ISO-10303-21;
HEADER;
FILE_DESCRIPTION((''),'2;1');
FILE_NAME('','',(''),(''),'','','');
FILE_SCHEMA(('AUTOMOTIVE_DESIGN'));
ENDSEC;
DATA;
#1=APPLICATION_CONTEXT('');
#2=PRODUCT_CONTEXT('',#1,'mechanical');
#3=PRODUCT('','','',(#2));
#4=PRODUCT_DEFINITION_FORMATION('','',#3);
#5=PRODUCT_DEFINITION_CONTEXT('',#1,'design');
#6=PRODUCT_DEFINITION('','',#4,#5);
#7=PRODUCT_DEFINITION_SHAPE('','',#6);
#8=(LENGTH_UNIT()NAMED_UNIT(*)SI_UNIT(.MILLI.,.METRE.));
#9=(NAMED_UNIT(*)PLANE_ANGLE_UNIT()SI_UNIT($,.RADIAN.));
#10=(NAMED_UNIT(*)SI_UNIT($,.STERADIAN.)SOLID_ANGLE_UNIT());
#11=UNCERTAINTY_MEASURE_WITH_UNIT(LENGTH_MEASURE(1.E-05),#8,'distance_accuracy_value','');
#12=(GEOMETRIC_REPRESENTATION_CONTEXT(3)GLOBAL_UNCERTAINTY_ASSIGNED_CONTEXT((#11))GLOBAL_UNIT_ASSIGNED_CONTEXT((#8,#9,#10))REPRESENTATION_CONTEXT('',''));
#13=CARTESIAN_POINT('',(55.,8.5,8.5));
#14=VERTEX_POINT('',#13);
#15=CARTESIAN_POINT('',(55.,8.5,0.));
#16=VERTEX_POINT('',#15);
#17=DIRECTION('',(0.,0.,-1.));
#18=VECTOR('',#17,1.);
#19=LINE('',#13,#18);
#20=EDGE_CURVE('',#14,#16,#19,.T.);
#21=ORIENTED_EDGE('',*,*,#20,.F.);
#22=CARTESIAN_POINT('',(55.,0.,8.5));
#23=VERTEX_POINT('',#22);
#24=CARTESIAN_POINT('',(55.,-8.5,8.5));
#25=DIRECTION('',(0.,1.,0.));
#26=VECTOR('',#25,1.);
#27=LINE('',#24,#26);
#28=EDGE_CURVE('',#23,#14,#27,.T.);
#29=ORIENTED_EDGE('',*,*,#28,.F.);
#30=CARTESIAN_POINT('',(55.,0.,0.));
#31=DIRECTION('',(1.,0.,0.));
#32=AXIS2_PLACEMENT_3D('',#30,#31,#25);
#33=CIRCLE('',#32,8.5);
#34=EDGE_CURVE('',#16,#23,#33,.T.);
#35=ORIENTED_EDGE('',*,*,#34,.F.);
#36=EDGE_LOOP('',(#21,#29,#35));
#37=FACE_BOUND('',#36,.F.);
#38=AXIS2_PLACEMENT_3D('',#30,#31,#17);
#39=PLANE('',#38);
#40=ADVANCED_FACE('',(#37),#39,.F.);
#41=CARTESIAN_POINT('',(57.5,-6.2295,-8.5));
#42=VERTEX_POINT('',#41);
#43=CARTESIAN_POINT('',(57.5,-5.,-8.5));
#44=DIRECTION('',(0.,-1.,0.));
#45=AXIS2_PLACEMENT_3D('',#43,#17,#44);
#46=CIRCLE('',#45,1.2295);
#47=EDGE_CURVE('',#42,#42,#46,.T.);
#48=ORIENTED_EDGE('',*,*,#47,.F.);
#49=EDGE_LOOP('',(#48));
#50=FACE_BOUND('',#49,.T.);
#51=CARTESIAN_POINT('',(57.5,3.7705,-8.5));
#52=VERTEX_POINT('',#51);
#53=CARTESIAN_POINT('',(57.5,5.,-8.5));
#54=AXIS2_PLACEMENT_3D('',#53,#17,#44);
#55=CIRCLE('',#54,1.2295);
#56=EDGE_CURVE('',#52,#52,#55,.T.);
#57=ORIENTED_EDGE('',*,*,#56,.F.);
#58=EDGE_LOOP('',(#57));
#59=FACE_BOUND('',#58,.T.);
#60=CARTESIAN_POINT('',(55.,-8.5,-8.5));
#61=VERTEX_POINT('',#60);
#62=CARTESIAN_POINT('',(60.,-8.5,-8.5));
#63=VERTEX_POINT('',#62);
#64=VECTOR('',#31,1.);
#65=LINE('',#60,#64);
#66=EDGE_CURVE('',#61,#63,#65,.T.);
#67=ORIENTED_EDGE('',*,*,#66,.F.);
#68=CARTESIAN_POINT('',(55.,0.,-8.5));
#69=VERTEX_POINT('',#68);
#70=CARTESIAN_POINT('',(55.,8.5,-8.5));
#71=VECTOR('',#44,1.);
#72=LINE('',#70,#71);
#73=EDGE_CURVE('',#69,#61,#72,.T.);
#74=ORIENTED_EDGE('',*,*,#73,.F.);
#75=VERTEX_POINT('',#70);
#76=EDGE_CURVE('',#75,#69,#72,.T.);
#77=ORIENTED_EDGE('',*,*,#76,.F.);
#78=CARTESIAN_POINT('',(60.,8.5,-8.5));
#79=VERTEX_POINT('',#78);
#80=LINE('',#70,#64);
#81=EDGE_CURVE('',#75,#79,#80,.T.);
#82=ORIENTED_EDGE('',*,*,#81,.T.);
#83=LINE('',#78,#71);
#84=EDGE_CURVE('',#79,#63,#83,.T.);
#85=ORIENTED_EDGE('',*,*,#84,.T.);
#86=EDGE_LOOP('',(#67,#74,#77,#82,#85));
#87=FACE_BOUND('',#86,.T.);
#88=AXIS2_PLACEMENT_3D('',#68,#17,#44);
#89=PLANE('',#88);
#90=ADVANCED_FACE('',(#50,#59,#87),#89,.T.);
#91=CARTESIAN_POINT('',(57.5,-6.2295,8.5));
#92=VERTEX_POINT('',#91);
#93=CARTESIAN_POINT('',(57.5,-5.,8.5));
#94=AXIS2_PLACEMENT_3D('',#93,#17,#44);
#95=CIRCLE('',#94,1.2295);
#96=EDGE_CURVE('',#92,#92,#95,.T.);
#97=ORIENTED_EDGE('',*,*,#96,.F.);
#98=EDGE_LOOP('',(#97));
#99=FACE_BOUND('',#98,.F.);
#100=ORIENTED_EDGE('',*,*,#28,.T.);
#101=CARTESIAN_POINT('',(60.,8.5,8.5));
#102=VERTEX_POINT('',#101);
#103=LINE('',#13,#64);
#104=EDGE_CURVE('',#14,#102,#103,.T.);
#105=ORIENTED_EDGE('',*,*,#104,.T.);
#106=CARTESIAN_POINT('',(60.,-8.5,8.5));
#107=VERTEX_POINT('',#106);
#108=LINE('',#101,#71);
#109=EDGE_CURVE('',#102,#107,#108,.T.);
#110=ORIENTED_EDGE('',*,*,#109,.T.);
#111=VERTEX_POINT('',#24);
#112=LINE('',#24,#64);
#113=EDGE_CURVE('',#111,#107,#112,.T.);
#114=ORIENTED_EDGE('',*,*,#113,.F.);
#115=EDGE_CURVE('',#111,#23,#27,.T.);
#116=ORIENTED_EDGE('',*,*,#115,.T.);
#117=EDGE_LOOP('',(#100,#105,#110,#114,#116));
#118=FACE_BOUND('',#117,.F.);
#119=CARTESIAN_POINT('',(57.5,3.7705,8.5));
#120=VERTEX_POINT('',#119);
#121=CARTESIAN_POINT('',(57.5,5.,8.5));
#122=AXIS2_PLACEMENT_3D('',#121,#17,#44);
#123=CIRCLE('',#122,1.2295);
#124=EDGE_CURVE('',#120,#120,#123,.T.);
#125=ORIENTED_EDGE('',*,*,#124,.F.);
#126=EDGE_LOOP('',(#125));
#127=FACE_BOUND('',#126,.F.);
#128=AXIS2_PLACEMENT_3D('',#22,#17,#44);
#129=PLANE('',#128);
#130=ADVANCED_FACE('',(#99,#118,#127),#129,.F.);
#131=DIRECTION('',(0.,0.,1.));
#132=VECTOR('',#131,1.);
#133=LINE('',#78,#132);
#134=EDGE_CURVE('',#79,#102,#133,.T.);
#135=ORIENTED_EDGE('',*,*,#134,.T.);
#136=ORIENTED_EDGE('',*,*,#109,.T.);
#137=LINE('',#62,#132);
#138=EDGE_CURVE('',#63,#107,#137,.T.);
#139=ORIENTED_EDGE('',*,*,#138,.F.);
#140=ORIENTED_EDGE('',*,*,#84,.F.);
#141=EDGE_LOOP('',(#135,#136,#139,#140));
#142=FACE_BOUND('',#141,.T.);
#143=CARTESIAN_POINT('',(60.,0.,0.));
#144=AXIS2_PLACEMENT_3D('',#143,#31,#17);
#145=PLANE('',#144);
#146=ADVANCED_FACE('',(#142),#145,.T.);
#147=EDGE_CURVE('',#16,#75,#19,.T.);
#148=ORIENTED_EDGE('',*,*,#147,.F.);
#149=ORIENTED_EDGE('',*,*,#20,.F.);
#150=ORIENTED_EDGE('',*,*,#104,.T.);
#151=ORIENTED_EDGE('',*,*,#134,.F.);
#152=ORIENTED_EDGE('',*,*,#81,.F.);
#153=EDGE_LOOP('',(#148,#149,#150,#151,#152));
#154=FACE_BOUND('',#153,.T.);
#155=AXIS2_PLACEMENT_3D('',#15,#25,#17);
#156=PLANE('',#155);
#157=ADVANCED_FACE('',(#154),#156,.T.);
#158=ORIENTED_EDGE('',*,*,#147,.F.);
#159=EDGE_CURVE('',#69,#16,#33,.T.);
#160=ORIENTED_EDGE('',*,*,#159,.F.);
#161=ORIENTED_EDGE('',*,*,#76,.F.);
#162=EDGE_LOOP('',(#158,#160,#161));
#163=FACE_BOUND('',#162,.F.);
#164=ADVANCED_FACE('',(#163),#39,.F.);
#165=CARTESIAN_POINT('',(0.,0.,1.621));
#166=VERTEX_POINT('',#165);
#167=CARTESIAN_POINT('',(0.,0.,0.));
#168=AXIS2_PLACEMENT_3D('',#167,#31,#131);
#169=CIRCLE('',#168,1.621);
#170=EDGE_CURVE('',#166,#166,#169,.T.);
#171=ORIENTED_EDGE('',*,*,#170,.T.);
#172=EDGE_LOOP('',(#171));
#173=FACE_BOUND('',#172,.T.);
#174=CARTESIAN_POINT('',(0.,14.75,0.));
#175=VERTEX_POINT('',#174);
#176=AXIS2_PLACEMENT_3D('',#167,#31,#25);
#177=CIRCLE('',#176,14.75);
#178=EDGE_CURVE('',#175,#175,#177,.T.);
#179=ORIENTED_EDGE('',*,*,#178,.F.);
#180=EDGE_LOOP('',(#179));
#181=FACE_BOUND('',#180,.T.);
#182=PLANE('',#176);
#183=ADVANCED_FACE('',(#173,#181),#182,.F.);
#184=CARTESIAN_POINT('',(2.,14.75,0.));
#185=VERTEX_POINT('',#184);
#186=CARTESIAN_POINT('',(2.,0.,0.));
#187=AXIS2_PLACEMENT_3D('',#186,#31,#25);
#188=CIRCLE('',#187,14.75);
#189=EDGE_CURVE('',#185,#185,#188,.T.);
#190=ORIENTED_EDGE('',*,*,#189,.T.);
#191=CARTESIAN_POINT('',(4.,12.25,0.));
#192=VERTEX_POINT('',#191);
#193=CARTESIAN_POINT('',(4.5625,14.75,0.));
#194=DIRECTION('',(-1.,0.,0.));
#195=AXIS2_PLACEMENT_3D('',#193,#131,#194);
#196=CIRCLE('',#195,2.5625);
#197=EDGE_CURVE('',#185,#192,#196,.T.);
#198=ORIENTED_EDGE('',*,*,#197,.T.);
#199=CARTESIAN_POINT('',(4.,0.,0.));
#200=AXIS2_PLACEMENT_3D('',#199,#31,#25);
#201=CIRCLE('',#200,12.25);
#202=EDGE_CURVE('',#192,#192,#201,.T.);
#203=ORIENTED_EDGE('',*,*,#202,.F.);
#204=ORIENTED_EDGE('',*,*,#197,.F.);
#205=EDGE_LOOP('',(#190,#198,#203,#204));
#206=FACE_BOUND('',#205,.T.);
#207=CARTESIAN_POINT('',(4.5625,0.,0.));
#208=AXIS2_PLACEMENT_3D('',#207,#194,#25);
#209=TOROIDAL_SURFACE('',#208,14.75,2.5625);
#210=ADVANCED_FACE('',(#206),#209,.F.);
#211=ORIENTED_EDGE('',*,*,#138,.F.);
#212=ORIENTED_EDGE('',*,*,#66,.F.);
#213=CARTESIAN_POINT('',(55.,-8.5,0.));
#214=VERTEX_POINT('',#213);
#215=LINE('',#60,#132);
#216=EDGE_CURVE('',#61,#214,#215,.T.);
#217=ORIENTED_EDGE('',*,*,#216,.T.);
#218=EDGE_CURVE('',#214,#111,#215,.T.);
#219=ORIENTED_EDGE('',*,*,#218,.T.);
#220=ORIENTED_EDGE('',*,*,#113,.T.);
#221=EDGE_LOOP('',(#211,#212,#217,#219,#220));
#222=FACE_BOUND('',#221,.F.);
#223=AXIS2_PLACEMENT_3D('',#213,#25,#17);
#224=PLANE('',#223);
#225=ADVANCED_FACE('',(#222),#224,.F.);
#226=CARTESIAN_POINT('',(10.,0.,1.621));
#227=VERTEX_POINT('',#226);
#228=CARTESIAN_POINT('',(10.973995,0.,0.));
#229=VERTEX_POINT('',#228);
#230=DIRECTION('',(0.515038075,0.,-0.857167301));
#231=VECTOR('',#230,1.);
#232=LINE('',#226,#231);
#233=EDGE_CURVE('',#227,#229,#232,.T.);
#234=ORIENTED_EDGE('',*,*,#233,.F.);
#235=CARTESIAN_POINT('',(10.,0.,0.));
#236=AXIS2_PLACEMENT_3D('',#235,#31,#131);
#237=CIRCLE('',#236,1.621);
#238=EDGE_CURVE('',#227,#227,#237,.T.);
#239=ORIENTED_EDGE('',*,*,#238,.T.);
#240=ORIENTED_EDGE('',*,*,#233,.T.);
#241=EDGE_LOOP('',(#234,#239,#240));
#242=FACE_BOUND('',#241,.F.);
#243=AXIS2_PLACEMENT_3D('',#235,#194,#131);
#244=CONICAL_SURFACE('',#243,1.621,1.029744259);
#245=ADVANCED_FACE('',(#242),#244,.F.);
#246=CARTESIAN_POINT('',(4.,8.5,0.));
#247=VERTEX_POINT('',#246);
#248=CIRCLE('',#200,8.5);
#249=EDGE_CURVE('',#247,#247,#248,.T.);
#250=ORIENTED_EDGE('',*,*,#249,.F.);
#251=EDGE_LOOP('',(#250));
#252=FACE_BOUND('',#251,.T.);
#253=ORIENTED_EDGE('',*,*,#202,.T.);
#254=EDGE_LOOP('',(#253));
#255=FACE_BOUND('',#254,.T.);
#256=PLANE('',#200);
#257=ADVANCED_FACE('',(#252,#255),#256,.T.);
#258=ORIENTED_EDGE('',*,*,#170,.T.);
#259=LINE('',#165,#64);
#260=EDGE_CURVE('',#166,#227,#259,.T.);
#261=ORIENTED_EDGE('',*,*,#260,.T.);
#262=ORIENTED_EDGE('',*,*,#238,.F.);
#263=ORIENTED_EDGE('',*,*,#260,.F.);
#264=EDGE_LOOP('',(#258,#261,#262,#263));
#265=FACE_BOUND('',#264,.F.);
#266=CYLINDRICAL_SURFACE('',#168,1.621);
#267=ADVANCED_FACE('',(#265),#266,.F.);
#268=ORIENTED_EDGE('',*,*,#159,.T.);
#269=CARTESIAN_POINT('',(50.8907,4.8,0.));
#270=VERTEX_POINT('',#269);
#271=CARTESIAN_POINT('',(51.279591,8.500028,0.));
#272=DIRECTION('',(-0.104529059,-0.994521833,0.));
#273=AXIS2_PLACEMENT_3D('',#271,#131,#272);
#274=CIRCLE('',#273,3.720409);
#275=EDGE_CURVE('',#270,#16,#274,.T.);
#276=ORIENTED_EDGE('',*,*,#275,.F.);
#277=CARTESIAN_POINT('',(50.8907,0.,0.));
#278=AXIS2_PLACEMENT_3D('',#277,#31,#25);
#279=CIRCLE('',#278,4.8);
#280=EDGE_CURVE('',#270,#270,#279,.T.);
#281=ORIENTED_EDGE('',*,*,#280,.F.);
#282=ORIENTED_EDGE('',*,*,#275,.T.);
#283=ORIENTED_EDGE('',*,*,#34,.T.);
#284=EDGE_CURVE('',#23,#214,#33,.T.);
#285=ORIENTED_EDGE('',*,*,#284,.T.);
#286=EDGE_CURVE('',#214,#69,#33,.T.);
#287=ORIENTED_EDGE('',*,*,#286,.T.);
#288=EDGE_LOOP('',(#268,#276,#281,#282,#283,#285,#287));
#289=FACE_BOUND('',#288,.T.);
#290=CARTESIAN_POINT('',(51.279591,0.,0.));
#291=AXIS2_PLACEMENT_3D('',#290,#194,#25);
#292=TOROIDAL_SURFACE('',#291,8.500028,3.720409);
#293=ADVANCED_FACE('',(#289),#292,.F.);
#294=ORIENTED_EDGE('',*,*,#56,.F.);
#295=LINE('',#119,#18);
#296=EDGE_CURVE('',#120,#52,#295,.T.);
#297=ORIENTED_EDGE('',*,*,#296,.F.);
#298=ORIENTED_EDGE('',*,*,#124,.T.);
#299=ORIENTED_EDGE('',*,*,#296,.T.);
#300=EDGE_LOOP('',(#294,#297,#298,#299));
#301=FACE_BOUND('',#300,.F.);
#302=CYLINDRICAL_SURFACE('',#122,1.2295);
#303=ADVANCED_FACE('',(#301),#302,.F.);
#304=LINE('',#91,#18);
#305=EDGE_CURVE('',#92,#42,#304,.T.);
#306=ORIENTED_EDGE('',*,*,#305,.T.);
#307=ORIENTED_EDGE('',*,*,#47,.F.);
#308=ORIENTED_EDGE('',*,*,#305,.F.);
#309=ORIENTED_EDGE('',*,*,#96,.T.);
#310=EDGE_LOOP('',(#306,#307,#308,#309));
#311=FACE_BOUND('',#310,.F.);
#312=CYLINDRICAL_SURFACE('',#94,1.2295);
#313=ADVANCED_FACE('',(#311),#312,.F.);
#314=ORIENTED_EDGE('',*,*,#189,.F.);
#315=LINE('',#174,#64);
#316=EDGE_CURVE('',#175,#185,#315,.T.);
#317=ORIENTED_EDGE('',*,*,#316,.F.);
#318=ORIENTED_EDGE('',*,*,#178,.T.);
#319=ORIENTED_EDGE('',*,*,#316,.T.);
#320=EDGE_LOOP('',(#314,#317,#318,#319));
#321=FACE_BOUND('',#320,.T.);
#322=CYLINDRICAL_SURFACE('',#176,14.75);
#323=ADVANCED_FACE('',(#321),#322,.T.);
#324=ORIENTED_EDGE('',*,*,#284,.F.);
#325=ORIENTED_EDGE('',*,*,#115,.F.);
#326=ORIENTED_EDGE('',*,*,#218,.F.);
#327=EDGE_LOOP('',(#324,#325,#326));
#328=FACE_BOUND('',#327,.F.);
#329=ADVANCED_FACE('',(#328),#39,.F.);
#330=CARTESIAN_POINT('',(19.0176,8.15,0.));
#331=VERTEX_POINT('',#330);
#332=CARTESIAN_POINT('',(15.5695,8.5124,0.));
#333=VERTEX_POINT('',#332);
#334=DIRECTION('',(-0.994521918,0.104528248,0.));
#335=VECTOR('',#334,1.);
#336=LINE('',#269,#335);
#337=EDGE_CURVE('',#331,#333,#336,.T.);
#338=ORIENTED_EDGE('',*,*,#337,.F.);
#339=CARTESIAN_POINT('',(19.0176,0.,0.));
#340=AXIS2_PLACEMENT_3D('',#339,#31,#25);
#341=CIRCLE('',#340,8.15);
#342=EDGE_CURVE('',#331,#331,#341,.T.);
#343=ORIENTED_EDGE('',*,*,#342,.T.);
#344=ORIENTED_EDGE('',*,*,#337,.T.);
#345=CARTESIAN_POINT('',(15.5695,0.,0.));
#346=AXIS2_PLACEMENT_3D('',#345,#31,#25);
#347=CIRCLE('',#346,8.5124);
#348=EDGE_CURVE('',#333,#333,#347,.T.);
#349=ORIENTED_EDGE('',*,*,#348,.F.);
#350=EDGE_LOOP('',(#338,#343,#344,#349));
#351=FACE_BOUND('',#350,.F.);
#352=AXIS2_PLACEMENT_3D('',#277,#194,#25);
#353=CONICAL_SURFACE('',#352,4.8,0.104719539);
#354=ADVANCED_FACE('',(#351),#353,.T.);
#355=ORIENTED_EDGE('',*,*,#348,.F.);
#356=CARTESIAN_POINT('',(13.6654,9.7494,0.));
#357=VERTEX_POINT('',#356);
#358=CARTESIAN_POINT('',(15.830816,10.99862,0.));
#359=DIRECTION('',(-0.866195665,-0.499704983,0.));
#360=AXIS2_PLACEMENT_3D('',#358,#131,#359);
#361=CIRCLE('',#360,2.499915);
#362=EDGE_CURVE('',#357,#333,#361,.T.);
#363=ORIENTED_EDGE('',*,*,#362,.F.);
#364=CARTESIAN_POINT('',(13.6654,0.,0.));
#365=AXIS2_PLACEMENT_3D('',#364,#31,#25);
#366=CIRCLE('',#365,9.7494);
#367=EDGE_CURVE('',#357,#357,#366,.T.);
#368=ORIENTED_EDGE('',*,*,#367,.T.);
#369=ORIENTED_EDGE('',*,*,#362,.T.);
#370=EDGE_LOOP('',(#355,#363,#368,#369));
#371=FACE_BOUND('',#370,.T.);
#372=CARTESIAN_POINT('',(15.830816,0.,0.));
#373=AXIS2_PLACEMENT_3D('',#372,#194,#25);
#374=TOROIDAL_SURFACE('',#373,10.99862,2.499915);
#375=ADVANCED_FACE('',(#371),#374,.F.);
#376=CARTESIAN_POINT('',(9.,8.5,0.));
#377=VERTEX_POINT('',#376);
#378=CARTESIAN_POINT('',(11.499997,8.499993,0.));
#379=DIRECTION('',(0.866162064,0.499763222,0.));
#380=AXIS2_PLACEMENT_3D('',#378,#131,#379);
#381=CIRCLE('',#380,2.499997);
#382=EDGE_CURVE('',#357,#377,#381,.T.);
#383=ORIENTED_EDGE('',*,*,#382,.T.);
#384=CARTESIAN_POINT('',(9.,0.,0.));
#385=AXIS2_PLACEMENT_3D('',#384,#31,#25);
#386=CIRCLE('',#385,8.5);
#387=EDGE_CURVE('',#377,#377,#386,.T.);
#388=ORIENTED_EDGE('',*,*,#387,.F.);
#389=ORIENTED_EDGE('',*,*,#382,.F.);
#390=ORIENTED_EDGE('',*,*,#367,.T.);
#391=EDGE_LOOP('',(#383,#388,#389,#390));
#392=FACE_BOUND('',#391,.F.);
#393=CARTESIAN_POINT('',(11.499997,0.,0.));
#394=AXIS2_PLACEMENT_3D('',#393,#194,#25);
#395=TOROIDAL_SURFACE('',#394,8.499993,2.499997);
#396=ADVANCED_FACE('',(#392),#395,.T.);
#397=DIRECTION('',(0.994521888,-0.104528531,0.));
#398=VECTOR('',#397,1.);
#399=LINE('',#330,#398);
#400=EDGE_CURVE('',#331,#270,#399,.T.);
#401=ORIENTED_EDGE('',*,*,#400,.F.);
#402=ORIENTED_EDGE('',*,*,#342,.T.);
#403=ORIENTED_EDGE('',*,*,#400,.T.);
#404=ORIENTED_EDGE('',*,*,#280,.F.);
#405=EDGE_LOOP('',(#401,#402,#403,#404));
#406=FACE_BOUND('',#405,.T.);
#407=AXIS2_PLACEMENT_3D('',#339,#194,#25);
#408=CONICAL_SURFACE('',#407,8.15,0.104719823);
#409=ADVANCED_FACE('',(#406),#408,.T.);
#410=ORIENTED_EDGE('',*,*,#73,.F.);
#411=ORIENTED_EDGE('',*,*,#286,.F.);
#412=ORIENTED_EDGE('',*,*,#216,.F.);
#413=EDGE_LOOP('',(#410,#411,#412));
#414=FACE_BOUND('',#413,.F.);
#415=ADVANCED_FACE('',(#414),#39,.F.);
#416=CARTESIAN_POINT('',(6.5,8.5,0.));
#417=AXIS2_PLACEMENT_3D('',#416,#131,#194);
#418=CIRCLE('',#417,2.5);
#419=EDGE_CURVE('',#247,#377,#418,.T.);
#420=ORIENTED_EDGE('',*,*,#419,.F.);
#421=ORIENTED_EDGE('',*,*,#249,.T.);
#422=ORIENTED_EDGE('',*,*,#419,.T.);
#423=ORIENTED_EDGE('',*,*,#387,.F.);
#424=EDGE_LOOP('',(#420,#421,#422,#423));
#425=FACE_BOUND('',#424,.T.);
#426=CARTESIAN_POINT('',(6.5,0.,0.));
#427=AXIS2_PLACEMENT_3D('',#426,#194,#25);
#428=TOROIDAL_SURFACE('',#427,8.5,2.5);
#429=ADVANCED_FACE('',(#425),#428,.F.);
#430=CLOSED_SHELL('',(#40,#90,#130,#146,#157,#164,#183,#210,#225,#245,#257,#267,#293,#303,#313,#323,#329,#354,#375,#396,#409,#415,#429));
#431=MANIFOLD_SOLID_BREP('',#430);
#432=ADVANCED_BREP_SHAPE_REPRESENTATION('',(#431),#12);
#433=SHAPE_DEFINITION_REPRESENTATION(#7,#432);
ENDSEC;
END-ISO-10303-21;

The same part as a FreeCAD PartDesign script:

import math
import FreeCAD as App
import Part
import Sketcher
Q = App.Units.Quantity


def add_polygon(sketch, points):
    """Adds a closed chain of lines whose ends are joined by coincident constraints."""
    first, n = sketch.GeometryCount, len(points)
    for a, b in zip(points, points[1:] + points[:1]):
        sketch.addGeometry(Part.LineSegment(App.Vector(*a, 0), App.Vector(*b, 0)), False)
    for i in range(n):
        sketch.addConstraint(Sketcher.Constraint("Coincident", first + i, 2, first + (i + 1) % n, 1))

doc = App.newDocument("Part")
body = doc.addObject("PartDesign::Body", "Body")

# Sketch on XY plane
sketch1 = doc.addObject("Sketcher::SketchObject", "Sketch")
body.addObject(sketch1)
sketch1.AttachmentSupport = (doc.XY_Plane, [""])
sketch1.MapMode = "FlatFace"
sketch1.addGeometry([
    Part.LineSegment(App.Vector(0, 14.8, 0), App.Vector(0, 0, 0)),  # 0
    Part.LineSegment(App.Vector(0, 0, 0), App.Vector(55, 0, 0)),  # 1
    Part.LineSegment(App.Vector(55, 0, 0), App.Vector(55, 8.5, 0)),  # 2
    Part.ArcOfCircle(Part.Circle(App.Vector(51.3, 8.5, 0), App.Vector(0, 0, 1), 3.7), math.radians(-96), math.radians(0)),  # 3
    Part.LineSegment(App.Vector(50.9, 4.8, 0), App.Vector(19, 8.2, 0)),  # 4
    Part.LineSegment(App.Vector(19, 8.1, 0), App.Vector(15.6, 8.5, 0)),  # 5
    Part.ArcOfCircle(Part.Circle(App.Vector(15.8, 11, 0), App.Vector(0, 0, 1), 2.5), math.radians(-150), math.radians(-96)),  # 6
    Part.ArcOfCircle(Part.Circle(App.Vector(11.5, 8.5, 0), App.Vector(0, 0, 1), 2.5), math.radians(30), math.radians(180)),  # 7
    Part.ArcOfCircle(Part.Circle(App.Vector(6.5, 8.5, 0), App.Vector(0, 0, 1), 2.5), math.radians(180), math.radians(360)),  # 8
    Part.LineSegment(App.Vector(4, 8.5, 0), App.Vector(4, 12.2, 0)),  # 9
    Part.ArcOfCircle(Part.Circle(App.Vector(4.6, 14.8, 0), App.Vector(0, 0, 1), 2.6), math.radians(180), math.radians(257)),  # 10
    Part.LineSegment(App.Vector(2, 14.8, 0), App.Vector(0, 14.8, 0)),  # 11
], False)
sketch1.addConstraint([
    Sketcher.Constraint("Coincident", 0, 2, 1, 1),
    Sketcher.Constraint("Coincident", 1, 2, 2, 1),
    Sketcher.Constraint("Tangent", 2, 2, 3, 2),
    Sketcher.Constraint("Tangent", 3, 1, 4, 1),
    Sketcher.Constraint("Coincident", 4, 2, 5, 1),
    Sketcher.Constraint("Tangent", 5, 2, 6, 2),
    Sketcher.Constraint("Tangent", 6, 1, 7, 1),
    Sketcher.Constraint("Tangent", 7, 2, 8, 2),
    Sketcher.Constraint("Tangent", 8, 1, 9, 1),
    Sketcher.Constraint("Coincident", 9, 2, 10, 2),
    Sketcher.Constraint("Coincident", 10, 1, 11, 1),
    Sketcher.Constraint("Coincident", 11, 2, 0, 1),
    Sketcher.Constraint("Vertical", 0),
    Sketcher.Constraint("Horizontal", 1),
    Sketcher.Constraint("Vertical", 2),
    Sketcher.Constraint("Vertical", 9),
    Sketcher.Constraint("Horizontal", 11),
    Sketcher.Constraint("Coincident", 0, 2, -1, 1),
    Sketcher.Constraint("Equal", 6, 7),
    Sketcher.Constraint("Equal", 7, 8),
    Sketcher.Constraint("Parallel", 4, 5),
    Sketcher.Constraint("Horizontal", 3, 3, 7, 3),
    Sketcher.Constraint("Horizontal", 7, 3, 8, 3),
    Sketcher.Constraint("Radius", 6, Q("2.5 mm")),
    Sketcher.Constraint("DistanceX", 1, 1, 1, 2, Q("55 mm")),
    Sketcher.Constraint("DistanceX", 11, 2, 11, 1, Q("2 mm")),
    Sketcher.Constraint("DistanceX", -1, 1, 7, 2, Q("9 mm")),
    Sketcher.Constraint("DistanceY", 9, 2, 10, 3, Q("2.5 mm")),
    Sketcher.Constraint("DistanceY", 9, 2, 10, 1, Q("2.5 mm")),
    Sketcher.Constraint("Angle", 4, Q("174 deg")),
    Sketcher.Constraint("DistanceY", 2, 1, 2, 2, Q("8.5 mm")),
    Sketcher.Constraint("DistanceY", 0, 2, 0, 1, Q("14.75 mm")),
    Sketcher.Constraint("DistanceY", -1, 1, 3, 1, Q("4.8 mm")),
    Sketcher.Constraint("DistanceY", 4, 2, 10, 3, Q("6.6 mm")),
])
revolution = doc.addObject("PartDesign::Revolution", "Revolution")
body.addObject(revolution)
revolution.Profile = sketch1
revolution.ReferenceAxis = (sketch1, ["H_Axis"])
revolution.Angle = 360

# Sketch on YZ plane
sketch2 = doc.addObject("Sketcher::SketchObject", "Sketch001")
body.addObject(sketch2)
sketch2.AttachmentSupport = (doc.YZ_Plane, [""])
sketch2.MapMode = "FlatFace"
sketch2.AttachmentOffset = App.Placement(App.Vector(0, 0, 55), App.Rotation())
add_polygon(sketch2, [(8, -8), (8, 8), (-8, 8), (-8, -8)])  # lines 0-3
sketch2.addConstraint([
    Sketcher.Constraint("Vertical", 0),
    Sketcher.Constraint("Horizontal", 1),
    Sketcher.Constraint("Vertical", 2),
    Sketcher.Constraint("Horizontal", 3),
    Sketcher.Constraint("Symmetric", 0, 2, 2, 2, -1, 1),
    Sketcher.Constraint("Equal", 3, 0),
    Sketcher.Constraint("DistanceX", 1, 2, 1, 1, Q("17 mm")),
])
pad1 = doc.addObject("PartDesign::Pad", "Pad")
body.addObject(pad1)
pad1.Profile = sketch2
pad1.Length = 5

# Sketch on XY plane
sketch3 = doc.addObject("Sketcher::SketchObject", "Sketch002")
body.addObject(sketch3)
sketch3.AttachmentSupport = (doc.XY_Plane, [""])
sketch3.MapMode = "FlatFace"
sketch3.AttachmentOffset = App.Placement(App.Vector(0, 0, 8.5), App.Rotation())
sketch3.addGeometry([
    Part.Circle(App.Vector(57.5, -5, 0), App.Vector(0, 0, 1), 1.2),
    Part.Circle(App.Vector(57.5, 5, 0), App.Vector(0, 0, 1), 1.2),
], False)
sketch3.addConstraint([
    Sketcher.Constraint("Equal", 0, 1),
    Sketcher.Constraint("Symmetric", 0, 3, 1, 3, -1),
    Sketcher.Constraint("Diameter", 0, Q("2.459 mm")),
    Sketcher.Constraint("DistanceY", 0, 3, -1, 1, Q("5 mm")),
    Sketcher.Constraint("DistanceX", -1, 1, 0, 3, Q("57.5 mm")),
])
doc.recompute()
hole = doc.addObject("PartDesign::Hole", "Hole")
body.addObject(hole)
hole.Profile = sketch3
hole.ThreadType = "None"
hole.Diameter = 2.459
hole.DepthType = "ThroughAll"

# Sketch on YZ plane
sketch4 = doc.addObject("Sketcher::SketchObject", "Sketch003")
body.addObject(sketch4)
sketch4.AttachmentSupport = (doc.YZ_Plane, [""])
sketch4.MapMode = "FlatFace"
sketch4.addGeometry(Part.Circle(App.Vector(0, 0, 0), App.Vector(0, 0, 1), 1.6), False)
sketch4.addConstraint([
    Sketcher.Constraint("Coincident", 0, 3, -1, 1),
    Sketcher.Constraint("Diameter", 0, Q("3.242 mm")),
])
doc.recompute()
hole2 = doc.addObject("PartDesign::Hole", "Hole001")
body.addObject(hole2)
hole2.Profile = sketch4
hole2.ThreadType = "None"
hole2.Diameter = 3.242
hole2.DepthType = "Dimension"
hole2.Depth = 10
hole2.DrillPoint = "Angled"
hole2.DrillPointAngle = 118
hole2.Reversed = True

doc.recompute()
